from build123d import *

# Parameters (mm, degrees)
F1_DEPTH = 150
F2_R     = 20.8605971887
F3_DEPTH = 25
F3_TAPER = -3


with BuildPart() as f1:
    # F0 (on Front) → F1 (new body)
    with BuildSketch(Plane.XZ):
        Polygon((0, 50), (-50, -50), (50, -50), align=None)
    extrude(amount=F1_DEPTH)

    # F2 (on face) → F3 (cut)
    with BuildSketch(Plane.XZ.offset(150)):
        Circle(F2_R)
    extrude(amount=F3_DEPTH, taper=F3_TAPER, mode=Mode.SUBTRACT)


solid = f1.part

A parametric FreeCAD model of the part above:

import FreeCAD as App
import Part
import Sketcher

V = App.Vector
Q = App.Units.Quantity


def add_polygon(sketch, points):
    """Adds a closed chain of lines whose ends are joined by coincident constraints."""
    first, n = sketch.GeometryCount, len(points)
    for a, b in zip(points, points[1:] + points[:1]):
        sketch.addGeometry(Part.LineSegment(App.Vector(*a, 0), App.Vector(*b, 0)), False)
    for i in range(n):
        sketch.addConstraint(Sketcher.Constraint("Coincident", first + i, 2, first + (i + 1) % n, 1))

doc = App.newDocument("Part")
params = doc.addObject("Spreadsheet::Sheet", "Params")
for row, (alias, value) in enumerate([
    ("sketch1_width", "100 mm"),
    ("pad1_length", "150 mm"),
    ("pocket1_length", "25 mm"),
    ("pocket1_taper", "3 deg"),
], start=1):
    params.set(f"A{row}", alias)
    params.set(f"B{row}", "=" + value)
    params.setAlias(f"B{row}", alias)

body = doc.addObject("PartDesign::Body", "Body")

# Sketch on XZ plane
sketch1 = body.newObject("Sketcher::SketchObject", "Sketch")
sketch1.AttachmentSupport = (doc.getObject("XZ_Plane"), [""])
sketch1.MapMode = "FlatFace"
add_polygon(sketch1, [(0, 50), (-50, -50), (50, -50)])  # lines 0-2
sketch1.addConstraint([
    Sketcher.Constraint("Horizontal", 1),
    Sketcher.Constraint("PointOnObject", 2, 2, -2),
    Sketcher.Constraint("Equal", 0, 2),
    Sketcher.Constraint("DistanceX", 1, 1, 1, 2, Q("100 mm")),
    Sketcher.Constraint("DistanceY", 0, 2, -1, 1, Q("50 mm")),
    Sketcher.Constraint("DistanceY", -1, 1, 2, 2, Q("50 mm")),
])
sketch1.setExpression("Constraints[6]", "Params.sketch1_width")
pad1 = body.newObject("PartDesign::Pad", "Pad")
pad1.Profile = sketch1
pad1.setExpression("Length", "Params.pad1_length")

# Sketch on XZ plane
sketch2 = body.newObject("Sketcher::SketchObject", "Sketch001")
sketch2.AttachmentSupport = (doc.getObject("XZ_Plane"), [""])
sketch2.MapMode = "FlatFace"
sketch2.AttachmentOffset = App.Placement(V(0, 0, 150), App.Rotation())
sketch2.addGeometry(Part.Circle(V(0, 0, 0), V(0, 0, 1), 21), False)
sketch2.addConstraint([
    Sketcher.Constraint("Coincident", 0, 3, -1, 1),
    Sketcher.Constraint("Diameter", 0, Q("41.721194 mm")),
])
pocket1 = body.newObject("PartDesign::Pocket", "Pocket")
pocket1.Profile = sketch2
pocket1.setExpression("Length", "Params.pocket1_length")
pocket1.Reversed = True
pocket1.setExpression("TaperAngle", "Params.pocket1_taper")

doc.recompute()
